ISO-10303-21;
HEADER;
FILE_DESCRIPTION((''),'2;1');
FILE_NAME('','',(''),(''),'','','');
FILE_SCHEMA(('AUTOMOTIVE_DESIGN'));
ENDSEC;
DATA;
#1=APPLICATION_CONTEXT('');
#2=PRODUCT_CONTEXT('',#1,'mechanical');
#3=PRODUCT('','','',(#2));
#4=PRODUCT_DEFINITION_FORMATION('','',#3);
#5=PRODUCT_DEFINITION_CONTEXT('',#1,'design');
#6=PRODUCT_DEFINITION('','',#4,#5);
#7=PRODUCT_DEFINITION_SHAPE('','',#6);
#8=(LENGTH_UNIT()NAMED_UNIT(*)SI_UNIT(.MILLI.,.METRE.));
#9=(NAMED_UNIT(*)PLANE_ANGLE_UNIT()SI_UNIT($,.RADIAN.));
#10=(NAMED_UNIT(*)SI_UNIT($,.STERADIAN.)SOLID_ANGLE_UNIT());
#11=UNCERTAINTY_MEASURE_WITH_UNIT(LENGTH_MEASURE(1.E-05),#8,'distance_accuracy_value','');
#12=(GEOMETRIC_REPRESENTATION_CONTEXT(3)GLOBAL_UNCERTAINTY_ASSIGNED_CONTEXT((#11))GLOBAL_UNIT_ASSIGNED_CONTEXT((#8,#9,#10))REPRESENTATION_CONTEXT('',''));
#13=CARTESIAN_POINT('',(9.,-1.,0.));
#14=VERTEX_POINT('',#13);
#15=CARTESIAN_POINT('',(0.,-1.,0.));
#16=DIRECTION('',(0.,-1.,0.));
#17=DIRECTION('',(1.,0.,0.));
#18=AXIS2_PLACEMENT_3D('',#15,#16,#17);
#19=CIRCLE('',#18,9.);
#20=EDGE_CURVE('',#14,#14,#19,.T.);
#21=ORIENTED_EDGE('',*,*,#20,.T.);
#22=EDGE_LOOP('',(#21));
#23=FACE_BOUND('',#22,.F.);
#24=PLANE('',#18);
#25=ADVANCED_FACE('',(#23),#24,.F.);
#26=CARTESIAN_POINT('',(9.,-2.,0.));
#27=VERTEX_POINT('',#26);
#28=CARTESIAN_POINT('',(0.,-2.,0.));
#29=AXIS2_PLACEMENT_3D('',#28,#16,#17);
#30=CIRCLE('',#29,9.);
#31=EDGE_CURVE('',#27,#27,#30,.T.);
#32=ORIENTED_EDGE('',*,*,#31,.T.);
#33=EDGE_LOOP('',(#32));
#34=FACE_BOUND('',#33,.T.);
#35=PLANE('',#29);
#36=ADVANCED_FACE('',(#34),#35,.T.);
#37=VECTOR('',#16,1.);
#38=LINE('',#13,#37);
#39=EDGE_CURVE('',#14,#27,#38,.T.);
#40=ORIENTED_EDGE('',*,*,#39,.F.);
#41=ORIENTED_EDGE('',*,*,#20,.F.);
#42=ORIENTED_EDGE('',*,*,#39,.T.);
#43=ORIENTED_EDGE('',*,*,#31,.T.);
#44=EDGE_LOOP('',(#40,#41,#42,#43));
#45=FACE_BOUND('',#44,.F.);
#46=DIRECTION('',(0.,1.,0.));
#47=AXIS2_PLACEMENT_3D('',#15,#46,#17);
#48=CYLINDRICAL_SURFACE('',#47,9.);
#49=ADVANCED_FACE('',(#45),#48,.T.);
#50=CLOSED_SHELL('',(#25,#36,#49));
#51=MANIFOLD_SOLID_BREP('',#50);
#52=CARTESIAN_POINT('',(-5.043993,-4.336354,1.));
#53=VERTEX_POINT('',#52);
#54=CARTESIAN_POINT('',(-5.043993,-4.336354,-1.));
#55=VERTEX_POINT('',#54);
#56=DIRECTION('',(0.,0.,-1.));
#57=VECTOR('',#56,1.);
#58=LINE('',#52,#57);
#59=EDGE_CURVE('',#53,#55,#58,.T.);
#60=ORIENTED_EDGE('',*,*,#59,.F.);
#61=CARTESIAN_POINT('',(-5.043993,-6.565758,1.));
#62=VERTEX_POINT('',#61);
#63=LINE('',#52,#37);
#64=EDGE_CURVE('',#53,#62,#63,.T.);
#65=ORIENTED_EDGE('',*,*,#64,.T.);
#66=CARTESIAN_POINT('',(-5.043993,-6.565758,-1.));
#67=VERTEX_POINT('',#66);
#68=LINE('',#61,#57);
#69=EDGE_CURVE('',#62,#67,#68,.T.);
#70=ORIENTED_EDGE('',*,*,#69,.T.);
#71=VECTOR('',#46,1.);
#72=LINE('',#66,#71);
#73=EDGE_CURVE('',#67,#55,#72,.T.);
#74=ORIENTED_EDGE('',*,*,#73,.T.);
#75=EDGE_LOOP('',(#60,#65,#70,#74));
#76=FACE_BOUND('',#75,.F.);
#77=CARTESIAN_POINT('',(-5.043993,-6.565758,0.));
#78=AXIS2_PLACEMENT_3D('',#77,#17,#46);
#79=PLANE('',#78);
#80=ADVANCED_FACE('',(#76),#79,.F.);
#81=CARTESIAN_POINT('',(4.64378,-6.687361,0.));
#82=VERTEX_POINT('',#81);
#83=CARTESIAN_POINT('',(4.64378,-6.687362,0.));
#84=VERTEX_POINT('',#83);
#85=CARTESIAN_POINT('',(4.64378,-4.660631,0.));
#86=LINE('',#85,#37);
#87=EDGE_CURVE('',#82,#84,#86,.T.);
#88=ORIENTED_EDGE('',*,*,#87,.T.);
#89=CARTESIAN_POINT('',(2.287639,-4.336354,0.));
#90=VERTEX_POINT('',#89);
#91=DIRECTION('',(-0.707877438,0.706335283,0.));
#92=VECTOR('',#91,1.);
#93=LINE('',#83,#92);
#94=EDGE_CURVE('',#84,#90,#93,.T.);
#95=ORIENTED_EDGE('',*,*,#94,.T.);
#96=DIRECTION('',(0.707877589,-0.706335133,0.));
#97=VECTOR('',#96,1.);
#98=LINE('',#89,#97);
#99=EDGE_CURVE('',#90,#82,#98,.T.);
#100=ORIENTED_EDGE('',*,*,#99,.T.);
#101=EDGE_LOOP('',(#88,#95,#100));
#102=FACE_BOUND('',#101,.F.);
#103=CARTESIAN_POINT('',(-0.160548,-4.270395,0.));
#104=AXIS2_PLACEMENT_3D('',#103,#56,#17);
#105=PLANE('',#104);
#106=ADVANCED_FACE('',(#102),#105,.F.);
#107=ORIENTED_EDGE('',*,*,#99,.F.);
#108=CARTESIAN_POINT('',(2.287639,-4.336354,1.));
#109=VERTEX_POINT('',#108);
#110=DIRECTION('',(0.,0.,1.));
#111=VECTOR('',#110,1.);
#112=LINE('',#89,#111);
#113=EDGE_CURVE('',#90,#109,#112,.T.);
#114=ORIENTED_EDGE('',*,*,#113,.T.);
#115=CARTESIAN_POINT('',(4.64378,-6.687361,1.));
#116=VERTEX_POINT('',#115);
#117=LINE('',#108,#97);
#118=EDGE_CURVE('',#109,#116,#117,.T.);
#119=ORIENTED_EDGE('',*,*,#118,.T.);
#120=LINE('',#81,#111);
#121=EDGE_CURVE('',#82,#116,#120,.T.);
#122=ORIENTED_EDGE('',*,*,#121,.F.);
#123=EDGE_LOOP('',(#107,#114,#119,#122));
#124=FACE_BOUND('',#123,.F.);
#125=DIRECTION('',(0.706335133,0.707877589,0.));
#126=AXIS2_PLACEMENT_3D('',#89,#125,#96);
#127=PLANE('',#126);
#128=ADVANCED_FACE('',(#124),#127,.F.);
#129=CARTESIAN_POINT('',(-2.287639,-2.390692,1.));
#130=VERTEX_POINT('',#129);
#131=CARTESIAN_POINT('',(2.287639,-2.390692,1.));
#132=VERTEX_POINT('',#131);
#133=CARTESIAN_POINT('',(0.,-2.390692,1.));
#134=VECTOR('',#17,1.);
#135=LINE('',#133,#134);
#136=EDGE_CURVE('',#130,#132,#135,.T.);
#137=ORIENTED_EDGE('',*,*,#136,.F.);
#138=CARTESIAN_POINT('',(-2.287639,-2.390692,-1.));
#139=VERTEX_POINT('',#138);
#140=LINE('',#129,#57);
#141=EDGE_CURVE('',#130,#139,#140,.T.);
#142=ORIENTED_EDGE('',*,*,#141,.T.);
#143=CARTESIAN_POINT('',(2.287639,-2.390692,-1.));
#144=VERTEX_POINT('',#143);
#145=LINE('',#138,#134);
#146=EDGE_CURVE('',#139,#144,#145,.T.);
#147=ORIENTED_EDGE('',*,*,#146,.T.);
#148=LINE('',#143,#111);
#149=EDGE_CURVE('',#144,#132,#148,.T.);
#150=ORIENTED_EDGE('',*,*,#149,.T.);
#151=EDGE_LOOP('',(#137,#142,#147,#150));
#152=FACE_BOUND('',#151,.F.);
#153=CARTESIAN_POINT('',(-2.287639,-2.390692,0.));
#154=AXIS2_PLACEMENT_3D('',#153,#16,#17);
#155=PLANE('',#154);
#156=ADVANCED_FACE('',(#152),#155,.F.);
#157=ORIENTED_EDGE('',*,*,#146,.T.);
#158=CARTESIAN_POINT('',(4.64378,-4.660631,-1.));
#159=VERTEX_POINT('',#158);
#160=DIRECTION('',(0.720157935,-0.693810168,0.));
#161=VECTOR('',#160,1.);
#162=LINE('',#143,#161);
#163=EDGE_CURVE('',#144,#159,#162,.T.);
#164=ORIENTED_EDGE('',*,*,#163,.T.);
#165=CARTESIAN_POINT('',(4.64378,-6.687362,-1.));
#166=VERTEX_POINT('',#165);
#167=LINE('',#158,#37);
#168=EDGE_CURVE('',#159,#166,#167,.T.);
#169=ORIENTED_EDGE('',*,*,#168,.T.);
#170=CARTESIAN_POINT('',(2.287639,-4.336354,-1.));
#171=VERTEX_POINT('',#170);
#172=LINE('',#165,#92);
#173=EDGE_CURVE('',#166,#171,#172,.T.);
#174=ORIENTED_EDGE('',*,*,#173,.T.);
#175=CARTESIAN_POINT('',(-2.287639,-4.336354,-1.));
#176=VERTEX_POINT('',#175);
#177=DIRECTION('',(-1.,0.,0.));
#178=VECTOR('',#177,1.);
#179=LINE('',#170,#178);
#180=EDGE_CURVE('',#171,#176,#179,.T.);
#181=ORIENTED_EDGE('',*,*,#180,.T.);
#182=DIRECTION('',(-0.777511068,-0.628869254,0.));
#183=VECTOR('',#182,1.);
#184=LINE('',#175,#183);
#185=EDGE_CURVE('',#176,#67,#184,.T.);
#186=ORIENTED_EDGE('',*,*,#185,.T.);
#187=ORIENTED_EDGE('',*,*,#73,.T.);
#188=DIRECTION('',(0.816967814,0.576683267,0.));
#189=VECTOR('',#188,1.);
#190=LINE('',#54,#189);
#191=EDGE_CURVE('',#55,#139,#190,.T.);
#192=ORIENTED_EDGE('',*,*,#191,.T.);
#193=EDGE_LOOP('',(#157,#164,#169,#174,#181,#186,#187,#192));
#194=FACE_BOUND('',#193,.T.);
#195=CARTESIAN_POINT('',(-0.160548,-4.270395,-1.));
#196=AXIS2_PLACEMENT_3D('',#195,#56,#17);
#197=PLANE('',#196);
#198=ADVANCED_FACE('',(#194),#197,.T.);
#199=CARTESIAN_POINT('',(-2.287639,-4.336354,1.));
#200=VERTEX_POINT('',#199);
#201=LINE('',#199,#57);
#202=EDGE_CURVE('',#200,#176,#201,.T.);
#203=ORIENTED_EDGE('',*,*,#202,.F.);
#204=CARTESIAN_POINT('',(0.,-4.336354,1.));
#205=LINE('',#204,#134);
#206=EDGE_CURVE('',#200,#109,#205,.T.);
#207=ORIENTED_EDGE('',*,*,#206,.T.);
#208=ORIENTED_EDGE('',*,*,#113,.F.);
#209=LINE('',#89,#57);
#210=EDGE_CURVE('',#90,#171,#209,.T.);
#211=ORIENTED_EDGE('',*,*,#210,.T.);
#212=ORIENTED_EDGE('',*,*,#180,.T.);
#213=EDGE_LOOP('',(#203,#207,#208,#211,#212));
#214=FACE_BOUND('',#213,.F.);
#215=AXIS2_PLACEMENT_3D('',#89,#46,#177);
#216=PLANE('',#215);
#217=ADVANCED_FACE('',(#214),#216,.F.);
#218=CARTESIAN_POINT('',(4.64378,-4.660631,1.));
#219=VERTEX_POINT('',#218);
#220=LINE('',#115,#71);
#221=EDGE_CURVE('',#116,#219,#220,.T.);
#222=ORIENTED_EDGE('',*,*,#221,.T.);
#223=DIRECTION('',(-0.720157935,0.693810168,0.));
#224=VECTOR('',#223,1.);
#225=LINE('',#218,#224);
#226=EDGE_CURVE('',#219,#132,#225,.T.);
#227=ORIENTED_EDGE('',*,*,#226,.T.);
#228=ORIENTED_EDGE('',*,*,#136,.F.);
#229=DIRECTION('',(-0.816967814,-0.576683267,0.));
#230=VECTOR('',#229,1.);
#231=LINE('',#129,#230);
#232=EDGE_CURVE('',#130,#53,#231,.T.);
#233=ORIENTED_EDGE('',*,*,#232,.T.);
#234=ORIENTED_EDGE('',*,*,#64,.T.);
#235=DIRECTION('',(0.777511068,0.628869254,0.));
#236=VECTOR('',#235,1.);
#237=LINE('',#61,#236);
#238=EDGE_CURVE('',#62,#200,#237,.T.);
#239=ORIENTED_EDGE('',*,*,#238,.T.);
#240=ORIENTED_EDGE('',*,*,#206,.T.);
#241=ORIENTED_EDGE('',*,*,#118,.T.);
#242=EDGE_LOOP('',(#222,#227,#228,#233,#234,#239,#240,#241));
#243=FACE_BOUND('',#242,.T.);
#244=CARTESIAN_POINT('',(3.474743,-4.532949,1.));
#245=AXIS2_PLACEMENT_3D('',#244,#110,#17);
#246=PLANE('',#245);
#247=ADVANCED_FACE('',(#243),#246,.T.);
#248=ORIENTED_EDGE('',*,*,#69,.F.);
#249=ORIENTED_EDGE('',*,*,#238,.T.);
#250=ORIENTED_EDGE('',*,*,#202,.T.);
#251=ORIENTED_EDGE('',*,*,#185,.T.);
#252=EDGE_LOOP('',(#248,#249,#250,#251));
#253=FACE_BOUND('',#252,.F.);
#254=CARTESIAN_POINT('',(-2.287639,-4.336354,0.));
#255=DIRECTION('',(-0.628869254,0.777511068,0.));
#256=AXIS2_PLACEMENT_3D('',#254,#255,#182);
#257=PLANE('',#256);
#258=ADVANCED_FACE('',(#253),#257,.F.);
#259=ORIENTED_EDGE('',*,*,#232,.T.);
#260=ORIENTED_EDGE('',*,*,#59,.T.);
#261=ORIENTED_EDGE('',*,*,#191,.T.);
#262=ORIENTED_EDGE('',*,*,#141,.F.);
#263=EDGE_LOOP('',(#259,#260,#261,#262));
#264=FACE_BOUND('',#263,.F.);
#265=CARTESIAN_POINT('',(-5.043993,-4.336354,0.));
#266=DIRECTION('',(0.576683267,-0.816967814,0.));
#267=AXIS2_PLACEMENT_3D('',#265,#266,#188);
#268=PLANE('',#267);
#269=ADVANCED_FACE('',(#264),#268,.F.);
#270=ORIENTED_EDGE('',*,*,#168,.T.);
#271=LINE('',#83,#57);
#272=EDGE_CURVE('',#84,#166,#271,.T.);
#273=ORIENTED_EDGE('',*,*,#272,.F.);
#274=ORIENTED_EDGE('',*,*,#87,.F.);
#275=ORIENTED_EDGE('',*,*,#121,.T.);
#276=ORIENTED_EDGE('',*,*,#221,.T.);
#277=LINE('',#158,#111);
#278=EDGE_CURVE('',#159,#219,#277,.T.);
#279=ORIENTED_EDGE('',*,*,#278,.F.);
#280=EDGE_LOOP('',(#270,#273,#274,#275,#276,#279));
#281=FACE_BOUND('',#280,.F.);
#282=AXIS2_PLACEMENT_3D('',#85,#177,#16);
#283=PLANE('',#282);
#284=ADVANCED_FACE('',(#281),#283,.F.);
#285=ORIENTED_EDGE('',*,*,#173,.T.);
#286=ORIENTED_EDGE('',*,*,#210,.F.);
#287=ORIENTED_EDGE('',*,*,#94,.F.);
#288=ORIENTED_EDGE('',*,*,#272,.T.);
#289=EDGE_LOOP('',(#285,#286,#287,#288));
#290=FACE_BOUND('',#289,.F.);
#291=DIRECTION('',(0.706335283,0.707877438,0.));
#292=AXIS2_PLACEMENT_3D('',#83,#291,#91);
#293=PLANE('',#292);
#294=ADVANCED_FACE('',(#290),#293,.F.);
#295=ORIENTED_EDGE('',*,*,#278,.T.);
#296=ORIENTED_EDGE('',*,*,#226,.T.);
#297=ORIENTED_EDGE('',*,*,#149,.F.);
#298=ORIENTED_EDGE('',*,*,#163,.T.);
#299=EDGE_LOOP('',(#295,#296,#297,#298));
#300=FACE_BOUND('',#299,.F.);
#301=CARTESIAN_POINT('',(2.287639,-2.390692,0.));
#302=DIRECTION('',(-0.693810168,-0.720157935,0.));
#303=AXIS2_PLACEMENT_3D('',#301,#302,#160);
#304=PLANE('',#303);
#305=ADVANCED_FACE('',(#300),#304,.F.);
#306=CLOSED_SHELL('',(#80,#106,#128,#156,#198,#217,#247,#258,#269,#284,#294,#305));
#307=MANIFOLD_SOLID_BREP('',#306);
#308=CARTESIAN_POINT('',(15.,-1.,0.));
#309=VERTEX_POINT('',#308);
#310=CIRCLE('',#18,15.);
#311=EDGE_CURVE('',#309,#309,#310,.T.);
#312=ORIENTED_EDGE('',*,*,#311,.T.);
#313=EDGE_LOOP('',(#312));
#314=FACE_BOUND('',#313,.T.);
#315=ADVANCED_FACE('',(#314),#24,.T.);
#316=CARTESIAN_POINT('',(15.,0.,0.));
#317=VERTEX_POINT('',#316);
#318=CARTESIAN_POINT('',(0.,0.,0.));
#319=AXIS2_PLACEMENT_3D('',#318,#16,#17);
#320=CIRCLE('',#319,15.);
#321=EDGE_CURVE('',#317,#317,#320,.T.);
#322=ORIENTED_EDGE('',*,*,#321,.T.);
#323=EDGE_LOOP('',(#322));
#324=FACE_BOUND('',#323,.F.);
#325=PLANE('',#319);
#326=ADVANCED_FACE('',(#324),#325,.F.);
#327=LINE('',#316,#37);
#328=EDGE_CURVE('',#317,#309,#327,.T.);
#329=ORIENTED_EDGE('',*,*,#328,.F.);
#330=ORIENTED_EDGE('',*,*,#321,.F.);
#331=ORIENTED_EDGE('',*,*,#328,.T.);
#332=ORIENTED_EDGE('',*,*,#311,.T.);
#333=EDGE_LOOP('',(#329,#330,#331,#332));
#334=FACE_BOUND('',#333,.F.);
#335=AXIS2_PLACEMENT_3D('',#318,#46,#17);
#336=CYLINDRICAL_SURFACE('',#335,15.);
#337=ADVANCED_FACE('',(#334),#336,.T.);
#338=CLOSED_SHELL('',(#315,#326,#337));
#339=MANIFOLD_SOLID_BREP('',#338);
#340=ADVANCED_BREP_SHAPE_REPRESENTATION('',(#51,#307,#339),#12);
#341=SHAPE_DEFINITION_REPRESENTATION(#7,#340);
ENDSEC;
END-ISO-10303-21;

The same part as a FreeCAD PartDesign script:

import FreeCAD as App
import Part
import Sketcher

V = App.Vector


def add_polygon(sketch, points):
    """Adds a closed chain of lines whose ends are joined by coincident constraints."""
    first, n = sketch.GeometryCount, len(points)
    for a, b in zip(points, points[1:] + points[:1]):
        sketch.addGeometry(Part.LineSegment(App.Vector(*a, 0), App.Vector(*b, 0)), False)
    for i in range(n):
        sketch.addConstraint(Sketcher.Constraint("Coincident", first + i, 2, first + (i + 1) % n, 1))

doc = App.newDocument("Part")
body = doc.addObject("PartDesign::Body", "Body")

sketch1 = doc.addObject("Sketcher::SketchObject", "Sketch")
body.addObject(sketch1)
sketch1.AttachmentSupport = (doc.XZ_Plane, [""])
sketch1.MapMode = "FlatFace"
sketch1.addGeometry(Part.Circle(V(0, 0, 0), V(0, 0, 1), 15), False)
sketch1.addConstraint(Sketcher.Constraint("Coincident", 0, 3, -1, 1))
sketch1.addConstraint(Sketcher.Constraint("Diameter", 0, 30.0))
pad1 = doc.addObject("PartDesign::Pad", "Pad")
body.addObject(pad1)
pad1.Profile = sketch1
pad1.Length = 1
body2 = doc.addObject("PartDesign::Body", "Body001")

sketch2 = doc.addObject("Sketcher::SketchObject", "Sketch001")
body2.addObject(sketch2)
sketch2.AttachmentSupport = (doc.getObject("XZ_Plane001"), [""])
sketch2.MapMode = "FlatFace"
sketch2.AttachmentOffset = App.Placement(V(0, 0, 1), App.Rotation())
sketch2.addGeometry(Part.Circle(V(0, 0, 0), V(0, 0, 1), 9), False)
sketch2.addConstraint(Sketcher.Constraint("Coincident", 0, 3, -1, 1))
sketch2.addConstraint(Sketcher.Constraint("Diameter", 0, 18.0))
pad2 = doc.addObject("PartDesign::Pad", "Pad001")
body2.addObject(pad2)
pad2.Profile = sketch2
pad2.Length = 1
body3 = doc.addObject("PartDesign::Body", "Body002")

sketch3 = doc.addObject("Sketcher::SketchObject", "Sketch002")
body3.addObject(sketch3)
sketch3.AttachmentSupport = (doc.getObject("XY_Plane002"), [""])
sketch3.MapMode = "FlatFace"
add_polygon(sketch3, [(2.287639, -4.336354), (4.64378, -6.687361), (4.64378, -4.660631), (2.287639, -2.390692), (-2.287639, -2.390692), (-5.043993, -4.336354), (-5.043993, -6.565758), (-2.287639, -4.336354)])
sketch3.addConstraint(Sketcher.Constraint("Vertical", 1))
sketch3.addConstraint(Sketcher.Constraint("Horizontal", 3))
sketch3.addConstraint(Sketcher.Constraint("Vertical", 5))
sketch3.addConstraint(Sketcher.Constraint("Horizontal", 7))
sketch3.addConstraint(Sketcher.Constraint("Horizontal", 4, 2, 6, 2))
sketch3.addConstraint(Sketcher.Constraint("Vertical", 3, 2, 6, 2))
sketch3.addConstraint(Sketcher.Constraint("Vertical", 2, 2, 7, 2))
sketch3.addConstraint(Sketcher.Constraint("Distance", 2, 3.2717))
sketch3.addConstraint(Sketcher.Constraint("Distance", 6, 3.545099))
sketch3.addConstraint(Sketcher.Constraint("DistanceY", 1, 1, 1, 2, 2.02673))
sketch3.addConstraint(Sketcher.Constraint("Distance", 0, 3.328458))
sketch3.addConstraint(Sketcher.Constraint("DistanceX", 3, 2, 3, 1, 4.575278))
sketch3.addConstraint(Sketcher.Constraint("DistanceY", 5, 2, 5, 1, 2.229404))
sketch3.addConstraint(Sketcher.Constraint("DistanceX", -1, 1, 0, 2, 4.64378))
sketch3.addConstraint(Sketcher.Constraint("DistanceY", 0, 2, -1, 1, 6.687361))
sketch3.addConstraint(Sketcher.Constraint("DistanceX", -1, 1, 2, 2, 2.287639))
pad3 = doc.addObject("PartDesign::Pad", "Pad002")
body3.addObject(pad3)
pad3.Profile = sketch3
pad3.Length = 1

sketch4 = doc.addObject("Sketcher::SketchObject", "Sketch003")
body3.addObject(sketch4)
sketch4.AttachmentSupport = (doc.getObject("XY_Plane002"), [""])
sketch4.MapMode = "FlatFace"
add_polygon(sketch4, [(4.64378, -6.687362), (2.287639, -4.336354), (-2.287639, -4.336354), (-5.043993, -6.565758), (-5.043993, -4.336354), (-2.287639, -2.390692), (2.287639, -2.390692), (4.64378, -4.660631)])
sketch4.addConstraint(Sketcher.Constraint("Horizontal", 1))
sketch4.addConstraint(Sketcher.Constraint("Vertical", 3))
sketch4.addConstraint(Sketcher.Constraint("Horizontal", 5))
sketch4.addConstraint(Sketcher.Constraint("Vertical", 7))
sketch4.addConstraint(Sketcher.Constraint("Horizontal", 1, 2, 3, 2))
sketch4.addConstraint(Sketcher.Constraint("Vertical", 1, 2, 4, 2))
sketch4.addConstraint(Sketcher.Constraint("Vertical", 0, 2, 5, 2))
sketch4.addConstraint(Sketcher.Constraint("Distance", 2, 3.545099))
sketch4.addConstraint(Sketcher.Constraint("Distance", 6, 3.2717))
sketch4.addConstraint(Sketcher.Constraint("DistanceY", 7, 2, 7, 1, 2.026731))
sketch4.addConstraint(Sketcher.Constraint("Distance", 0, 3.328459))
sketch4.addConstraint(Sketcher.Constraint("DistanceX", 1, 2, 1, 1, 4.575278))
sketch4.addConstraint(Sketcher.Constraint("DistanceY", 3, 1, 3, 2, 2.229404))
sketch4.addConstraint(Sketcher.Constraint("DistanceX", -1, 1, 0, 2, 2.287639))
sketch4.addConstraint(Sketcher.Constraint("DistanceY", 4, 2, -1, 1, 2.390692))
sketch4.addConstraint(Sketcher.Constraint("DistanceX", -1, 1, 6, 2, 4.64378))
pad4 = doc.addObject("PartDesign::Pad", "Pad003")
body3.addObject(pad4)
pad4.Profile = sketch4
pad4.Length = 1
pad4.Reversed = True

doc.recompute()
